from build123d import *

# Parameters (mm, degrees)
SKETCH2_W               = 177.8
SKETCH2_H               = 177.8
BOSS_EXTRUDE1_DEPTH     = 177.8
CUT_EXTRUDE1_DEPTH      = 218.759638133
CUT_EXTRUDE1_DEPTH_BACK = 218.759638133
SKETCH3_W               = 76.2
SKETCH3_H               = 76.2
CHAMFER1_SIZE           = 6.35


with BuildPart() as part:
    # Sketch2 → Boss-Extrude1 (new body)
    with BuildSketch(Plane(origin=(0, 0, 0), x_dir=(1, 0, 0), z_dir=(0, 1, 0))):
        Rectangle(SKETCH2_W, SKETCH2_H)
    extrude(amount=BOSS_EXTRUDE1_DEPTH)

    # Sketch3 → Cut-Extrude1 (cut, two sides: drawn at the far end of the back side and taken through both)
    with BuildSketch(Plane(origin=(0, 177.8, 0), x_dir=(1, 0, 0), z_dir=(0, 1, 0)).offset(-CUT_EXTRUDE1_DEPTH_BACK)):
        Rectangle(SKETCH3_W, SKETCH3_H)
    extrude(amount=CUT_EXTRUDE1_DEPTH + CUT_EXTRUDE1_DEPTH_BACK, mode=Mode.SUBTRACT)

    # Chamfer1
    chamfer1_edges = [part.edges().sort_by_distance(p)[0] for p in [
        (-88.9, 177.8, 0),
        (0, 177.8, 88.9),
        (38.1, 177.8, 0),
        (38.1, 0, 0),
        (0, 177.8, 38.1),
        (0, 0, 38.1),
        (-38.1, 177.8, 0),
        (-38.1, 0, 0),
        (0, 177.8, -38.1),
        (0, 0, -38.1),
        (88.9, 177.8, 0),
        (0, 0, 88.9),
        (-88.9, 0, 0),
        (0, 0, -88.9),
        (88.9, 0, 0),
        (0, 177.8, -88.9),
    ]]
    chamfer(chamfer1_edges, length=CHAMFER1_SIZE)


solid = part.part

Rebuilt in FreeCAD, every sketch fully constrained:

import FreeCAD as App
import Part
import Sketcher

V = App.Vector
Q = App.Units.Quantity


def edges_at(feature, points):
    """Names of the edges that pass closest to the given points."""
    edges = feature.Shape.Edges
    near = lambda p: min(range(len(edges)), key=lambda i: edges[i].distToShape(Part.Vertex(*p))[0])
    return sorted({f"Edge{near(p) + 1}" for p in points})

doc = App.newDocument("Part")
params = doc.addObject("Spreadsheet::Sheet", "Params")
for row, (alias, value) in enumerate([
    ("sketch1_width", "7 in"),
    ("pad1_length", "7 in"),
    ("sketch2_width", "3 in"),
    ("chamfer_size", "0.25 in"),
], start=1):
    params.set(f"A{row}", alias)
    params.set(f"B{row}", "=" + value)
    params.setAlias(f"B{row}", alias)

body = doc.addObject("PartDesign::Body", "Body")

sketch1 = doc.addObject("Sketcher::SketchObject", "Sketch")
body.addObject(sketch1)
sketch1.AttachmentSupport = (doc.XZ_Plane, [""])
sketch1.MapMode = "FlatFace"
sketch1.addGeometry(Part.LineSegment(V(-89, -89, 0), V(-89, 89, 0)), False)
sketch1.addGeometry(Part.LineSegment(V(-89, 89, 0), V(89, 89, 0)), False)
sketch1.addGeometry(Part.LineSegment(V(89, 89, 0), V(89, -89, 0)), False)
sketch1.addGeometry(Part.LineSegment(V(89, -89, 0), V(-89, -89, 0)), False)
sketch1.addConstraint(Sketcher.Constraint("Coincident", 0, 2, 1, 1))
sketch1.addConstraint(Sketcher.Constraint("Coincident", 1, 2, 2, 1))
sketch1.addConstraint(Sketcher.Constraint("Coincident", 2, 2, 3, 1))
sketch1.addConstraint(Sketcher.Constraint("Coincident", 3, 2, 0, 1))
sketch1.addConstraint(Sketcher.Constraint("Vertical", 0))
sketch1.addConstraint(Sketcher.Constraint("Horizontal", 1))
sketch1.addConstraint(Sketcher.Constraint("Vertical", 2))
sketch1.addConstraint(Sketcher.Constraint("Horizontal", 3))
sketch1.addConstraint(Sketcher.Constraint("Symmetric", 0, 2, 2, 2, -1, 1))
sketch1.addConstraint(Sketcher.Constraint("Equal", 3, 0))
sketch1.addConstraint(Sketcher.Constraint("DistanceX", 1, 1, 1, 2, Q("7 in")))
sketch1.setExpression("Constraints[10]", "Params.sketch1_width")
pad1 = doc.addObject("PartDesign::Pad", "Pad")
body.addObject(pad1)
pad1.Profile = sketch1
pad1.setExpression("Length", "Params.pad1_length")
pad1.Reversed = True

sketch2 = doc.addObject("Sketcher::SketchObject", "Sketch001")
body.addObject(sketch2)
sketch2.AttachmentSupport = (doc.XZ_Plane, [""])
sketch2.MapMode = "FlatFace"
sketch2.AttachmentOffset = App.Placement(V(0, 0, -7 * 25.4), App.Rotation())
sketch2.addGeometry(Part.LineSegment(V(-38, -38, 0), V(-38, 38, 0)), False)
sketch2.addGeometry(Part.LineSegment(V(-38, 38, 0), V(38, 38, 0)), False)
sketch2.addGeometry(Part.LineSegment(V(38, 38, 0), V(38, -38, 0)), False)
sketch2.addGeometry(Part.LineSegment(V(38, -38, 0), V(-38, -38, 0)), False)
sketch2.addConstraint(Sketcher.Constraint("Coincident", 0, 2, 1, 1))
sketch2.addConstraint(Sketcher.Constraint("Coincident", 1, 2, 2, 1))
sketch2.addConstraint(Sketcher.Constraint("Coincident", 2, 2, 3, 1))
sketch2.addConstraint(Sketcher.Constraint("Coincident", 3, 2, 0, 1))
sketch2.addConstraint(Sketcher.Constraint("Vertical", 0))
sketch2.addConstraint(Sketcher.Constraint("Horizontal", 1))
sketch2.addConstraint(Sketcher.Constraint("Vertical", 2))
sketch2.addConstraint(Sketcher.Constraint("Horizontal", 3))
sketch2.addConstraint(Sketcher.Constraint("Symmetric", 0, 2, 2, 2, -1, 1))
sketch2.addConstraint(Sketcher.Constraint("Equal", 3, 0))
sketch2.addConstraint(Sketcher.Constraint("DistanceX", 1, 1, 1, 2, Q("3 in")))
sketch2.setExpression("Constraints[10]", "Params.sketch2_width")
pocket1 = doc.addObject("PartDesign::Pocket", "Pocket")
body.addObject(pocket1)
pocket1.Profile = sketch2
pocket1.Type = "ThroughAll"
pocket1.Midplane = True
doc.recompute()

chamfer = doc.addObject("PartDesign::Chamfer", "Chamfer")
body.addObject(chamfer)
chamfer.Base = (pocket1, edges_at(pocket1, [
    (-88.9, 177.8, 0),
    (0, 177.8, 88.9),
    (38.1, 177.8, 0),
    (38.1, 0, 0),
    (0, 177.8, 38.1),
    (0, 0, 38.1),
    (-38.1, 177.8, 0),
    (-38.1, 0, 0),
    (0, 177.8, -38.1),
    (0, 0, -38.1),
    (88.9, 177.8, 0),
    (0, 0, 88.9),
    (-88.9, 0, 0),
    (0, 0, -88.9),
    (88.9, 0, 0),
    (0, 177.8, -88.9),
]))
chamfer.setExpression("Size", "Params.chamfer_size")

doc.recompute()
